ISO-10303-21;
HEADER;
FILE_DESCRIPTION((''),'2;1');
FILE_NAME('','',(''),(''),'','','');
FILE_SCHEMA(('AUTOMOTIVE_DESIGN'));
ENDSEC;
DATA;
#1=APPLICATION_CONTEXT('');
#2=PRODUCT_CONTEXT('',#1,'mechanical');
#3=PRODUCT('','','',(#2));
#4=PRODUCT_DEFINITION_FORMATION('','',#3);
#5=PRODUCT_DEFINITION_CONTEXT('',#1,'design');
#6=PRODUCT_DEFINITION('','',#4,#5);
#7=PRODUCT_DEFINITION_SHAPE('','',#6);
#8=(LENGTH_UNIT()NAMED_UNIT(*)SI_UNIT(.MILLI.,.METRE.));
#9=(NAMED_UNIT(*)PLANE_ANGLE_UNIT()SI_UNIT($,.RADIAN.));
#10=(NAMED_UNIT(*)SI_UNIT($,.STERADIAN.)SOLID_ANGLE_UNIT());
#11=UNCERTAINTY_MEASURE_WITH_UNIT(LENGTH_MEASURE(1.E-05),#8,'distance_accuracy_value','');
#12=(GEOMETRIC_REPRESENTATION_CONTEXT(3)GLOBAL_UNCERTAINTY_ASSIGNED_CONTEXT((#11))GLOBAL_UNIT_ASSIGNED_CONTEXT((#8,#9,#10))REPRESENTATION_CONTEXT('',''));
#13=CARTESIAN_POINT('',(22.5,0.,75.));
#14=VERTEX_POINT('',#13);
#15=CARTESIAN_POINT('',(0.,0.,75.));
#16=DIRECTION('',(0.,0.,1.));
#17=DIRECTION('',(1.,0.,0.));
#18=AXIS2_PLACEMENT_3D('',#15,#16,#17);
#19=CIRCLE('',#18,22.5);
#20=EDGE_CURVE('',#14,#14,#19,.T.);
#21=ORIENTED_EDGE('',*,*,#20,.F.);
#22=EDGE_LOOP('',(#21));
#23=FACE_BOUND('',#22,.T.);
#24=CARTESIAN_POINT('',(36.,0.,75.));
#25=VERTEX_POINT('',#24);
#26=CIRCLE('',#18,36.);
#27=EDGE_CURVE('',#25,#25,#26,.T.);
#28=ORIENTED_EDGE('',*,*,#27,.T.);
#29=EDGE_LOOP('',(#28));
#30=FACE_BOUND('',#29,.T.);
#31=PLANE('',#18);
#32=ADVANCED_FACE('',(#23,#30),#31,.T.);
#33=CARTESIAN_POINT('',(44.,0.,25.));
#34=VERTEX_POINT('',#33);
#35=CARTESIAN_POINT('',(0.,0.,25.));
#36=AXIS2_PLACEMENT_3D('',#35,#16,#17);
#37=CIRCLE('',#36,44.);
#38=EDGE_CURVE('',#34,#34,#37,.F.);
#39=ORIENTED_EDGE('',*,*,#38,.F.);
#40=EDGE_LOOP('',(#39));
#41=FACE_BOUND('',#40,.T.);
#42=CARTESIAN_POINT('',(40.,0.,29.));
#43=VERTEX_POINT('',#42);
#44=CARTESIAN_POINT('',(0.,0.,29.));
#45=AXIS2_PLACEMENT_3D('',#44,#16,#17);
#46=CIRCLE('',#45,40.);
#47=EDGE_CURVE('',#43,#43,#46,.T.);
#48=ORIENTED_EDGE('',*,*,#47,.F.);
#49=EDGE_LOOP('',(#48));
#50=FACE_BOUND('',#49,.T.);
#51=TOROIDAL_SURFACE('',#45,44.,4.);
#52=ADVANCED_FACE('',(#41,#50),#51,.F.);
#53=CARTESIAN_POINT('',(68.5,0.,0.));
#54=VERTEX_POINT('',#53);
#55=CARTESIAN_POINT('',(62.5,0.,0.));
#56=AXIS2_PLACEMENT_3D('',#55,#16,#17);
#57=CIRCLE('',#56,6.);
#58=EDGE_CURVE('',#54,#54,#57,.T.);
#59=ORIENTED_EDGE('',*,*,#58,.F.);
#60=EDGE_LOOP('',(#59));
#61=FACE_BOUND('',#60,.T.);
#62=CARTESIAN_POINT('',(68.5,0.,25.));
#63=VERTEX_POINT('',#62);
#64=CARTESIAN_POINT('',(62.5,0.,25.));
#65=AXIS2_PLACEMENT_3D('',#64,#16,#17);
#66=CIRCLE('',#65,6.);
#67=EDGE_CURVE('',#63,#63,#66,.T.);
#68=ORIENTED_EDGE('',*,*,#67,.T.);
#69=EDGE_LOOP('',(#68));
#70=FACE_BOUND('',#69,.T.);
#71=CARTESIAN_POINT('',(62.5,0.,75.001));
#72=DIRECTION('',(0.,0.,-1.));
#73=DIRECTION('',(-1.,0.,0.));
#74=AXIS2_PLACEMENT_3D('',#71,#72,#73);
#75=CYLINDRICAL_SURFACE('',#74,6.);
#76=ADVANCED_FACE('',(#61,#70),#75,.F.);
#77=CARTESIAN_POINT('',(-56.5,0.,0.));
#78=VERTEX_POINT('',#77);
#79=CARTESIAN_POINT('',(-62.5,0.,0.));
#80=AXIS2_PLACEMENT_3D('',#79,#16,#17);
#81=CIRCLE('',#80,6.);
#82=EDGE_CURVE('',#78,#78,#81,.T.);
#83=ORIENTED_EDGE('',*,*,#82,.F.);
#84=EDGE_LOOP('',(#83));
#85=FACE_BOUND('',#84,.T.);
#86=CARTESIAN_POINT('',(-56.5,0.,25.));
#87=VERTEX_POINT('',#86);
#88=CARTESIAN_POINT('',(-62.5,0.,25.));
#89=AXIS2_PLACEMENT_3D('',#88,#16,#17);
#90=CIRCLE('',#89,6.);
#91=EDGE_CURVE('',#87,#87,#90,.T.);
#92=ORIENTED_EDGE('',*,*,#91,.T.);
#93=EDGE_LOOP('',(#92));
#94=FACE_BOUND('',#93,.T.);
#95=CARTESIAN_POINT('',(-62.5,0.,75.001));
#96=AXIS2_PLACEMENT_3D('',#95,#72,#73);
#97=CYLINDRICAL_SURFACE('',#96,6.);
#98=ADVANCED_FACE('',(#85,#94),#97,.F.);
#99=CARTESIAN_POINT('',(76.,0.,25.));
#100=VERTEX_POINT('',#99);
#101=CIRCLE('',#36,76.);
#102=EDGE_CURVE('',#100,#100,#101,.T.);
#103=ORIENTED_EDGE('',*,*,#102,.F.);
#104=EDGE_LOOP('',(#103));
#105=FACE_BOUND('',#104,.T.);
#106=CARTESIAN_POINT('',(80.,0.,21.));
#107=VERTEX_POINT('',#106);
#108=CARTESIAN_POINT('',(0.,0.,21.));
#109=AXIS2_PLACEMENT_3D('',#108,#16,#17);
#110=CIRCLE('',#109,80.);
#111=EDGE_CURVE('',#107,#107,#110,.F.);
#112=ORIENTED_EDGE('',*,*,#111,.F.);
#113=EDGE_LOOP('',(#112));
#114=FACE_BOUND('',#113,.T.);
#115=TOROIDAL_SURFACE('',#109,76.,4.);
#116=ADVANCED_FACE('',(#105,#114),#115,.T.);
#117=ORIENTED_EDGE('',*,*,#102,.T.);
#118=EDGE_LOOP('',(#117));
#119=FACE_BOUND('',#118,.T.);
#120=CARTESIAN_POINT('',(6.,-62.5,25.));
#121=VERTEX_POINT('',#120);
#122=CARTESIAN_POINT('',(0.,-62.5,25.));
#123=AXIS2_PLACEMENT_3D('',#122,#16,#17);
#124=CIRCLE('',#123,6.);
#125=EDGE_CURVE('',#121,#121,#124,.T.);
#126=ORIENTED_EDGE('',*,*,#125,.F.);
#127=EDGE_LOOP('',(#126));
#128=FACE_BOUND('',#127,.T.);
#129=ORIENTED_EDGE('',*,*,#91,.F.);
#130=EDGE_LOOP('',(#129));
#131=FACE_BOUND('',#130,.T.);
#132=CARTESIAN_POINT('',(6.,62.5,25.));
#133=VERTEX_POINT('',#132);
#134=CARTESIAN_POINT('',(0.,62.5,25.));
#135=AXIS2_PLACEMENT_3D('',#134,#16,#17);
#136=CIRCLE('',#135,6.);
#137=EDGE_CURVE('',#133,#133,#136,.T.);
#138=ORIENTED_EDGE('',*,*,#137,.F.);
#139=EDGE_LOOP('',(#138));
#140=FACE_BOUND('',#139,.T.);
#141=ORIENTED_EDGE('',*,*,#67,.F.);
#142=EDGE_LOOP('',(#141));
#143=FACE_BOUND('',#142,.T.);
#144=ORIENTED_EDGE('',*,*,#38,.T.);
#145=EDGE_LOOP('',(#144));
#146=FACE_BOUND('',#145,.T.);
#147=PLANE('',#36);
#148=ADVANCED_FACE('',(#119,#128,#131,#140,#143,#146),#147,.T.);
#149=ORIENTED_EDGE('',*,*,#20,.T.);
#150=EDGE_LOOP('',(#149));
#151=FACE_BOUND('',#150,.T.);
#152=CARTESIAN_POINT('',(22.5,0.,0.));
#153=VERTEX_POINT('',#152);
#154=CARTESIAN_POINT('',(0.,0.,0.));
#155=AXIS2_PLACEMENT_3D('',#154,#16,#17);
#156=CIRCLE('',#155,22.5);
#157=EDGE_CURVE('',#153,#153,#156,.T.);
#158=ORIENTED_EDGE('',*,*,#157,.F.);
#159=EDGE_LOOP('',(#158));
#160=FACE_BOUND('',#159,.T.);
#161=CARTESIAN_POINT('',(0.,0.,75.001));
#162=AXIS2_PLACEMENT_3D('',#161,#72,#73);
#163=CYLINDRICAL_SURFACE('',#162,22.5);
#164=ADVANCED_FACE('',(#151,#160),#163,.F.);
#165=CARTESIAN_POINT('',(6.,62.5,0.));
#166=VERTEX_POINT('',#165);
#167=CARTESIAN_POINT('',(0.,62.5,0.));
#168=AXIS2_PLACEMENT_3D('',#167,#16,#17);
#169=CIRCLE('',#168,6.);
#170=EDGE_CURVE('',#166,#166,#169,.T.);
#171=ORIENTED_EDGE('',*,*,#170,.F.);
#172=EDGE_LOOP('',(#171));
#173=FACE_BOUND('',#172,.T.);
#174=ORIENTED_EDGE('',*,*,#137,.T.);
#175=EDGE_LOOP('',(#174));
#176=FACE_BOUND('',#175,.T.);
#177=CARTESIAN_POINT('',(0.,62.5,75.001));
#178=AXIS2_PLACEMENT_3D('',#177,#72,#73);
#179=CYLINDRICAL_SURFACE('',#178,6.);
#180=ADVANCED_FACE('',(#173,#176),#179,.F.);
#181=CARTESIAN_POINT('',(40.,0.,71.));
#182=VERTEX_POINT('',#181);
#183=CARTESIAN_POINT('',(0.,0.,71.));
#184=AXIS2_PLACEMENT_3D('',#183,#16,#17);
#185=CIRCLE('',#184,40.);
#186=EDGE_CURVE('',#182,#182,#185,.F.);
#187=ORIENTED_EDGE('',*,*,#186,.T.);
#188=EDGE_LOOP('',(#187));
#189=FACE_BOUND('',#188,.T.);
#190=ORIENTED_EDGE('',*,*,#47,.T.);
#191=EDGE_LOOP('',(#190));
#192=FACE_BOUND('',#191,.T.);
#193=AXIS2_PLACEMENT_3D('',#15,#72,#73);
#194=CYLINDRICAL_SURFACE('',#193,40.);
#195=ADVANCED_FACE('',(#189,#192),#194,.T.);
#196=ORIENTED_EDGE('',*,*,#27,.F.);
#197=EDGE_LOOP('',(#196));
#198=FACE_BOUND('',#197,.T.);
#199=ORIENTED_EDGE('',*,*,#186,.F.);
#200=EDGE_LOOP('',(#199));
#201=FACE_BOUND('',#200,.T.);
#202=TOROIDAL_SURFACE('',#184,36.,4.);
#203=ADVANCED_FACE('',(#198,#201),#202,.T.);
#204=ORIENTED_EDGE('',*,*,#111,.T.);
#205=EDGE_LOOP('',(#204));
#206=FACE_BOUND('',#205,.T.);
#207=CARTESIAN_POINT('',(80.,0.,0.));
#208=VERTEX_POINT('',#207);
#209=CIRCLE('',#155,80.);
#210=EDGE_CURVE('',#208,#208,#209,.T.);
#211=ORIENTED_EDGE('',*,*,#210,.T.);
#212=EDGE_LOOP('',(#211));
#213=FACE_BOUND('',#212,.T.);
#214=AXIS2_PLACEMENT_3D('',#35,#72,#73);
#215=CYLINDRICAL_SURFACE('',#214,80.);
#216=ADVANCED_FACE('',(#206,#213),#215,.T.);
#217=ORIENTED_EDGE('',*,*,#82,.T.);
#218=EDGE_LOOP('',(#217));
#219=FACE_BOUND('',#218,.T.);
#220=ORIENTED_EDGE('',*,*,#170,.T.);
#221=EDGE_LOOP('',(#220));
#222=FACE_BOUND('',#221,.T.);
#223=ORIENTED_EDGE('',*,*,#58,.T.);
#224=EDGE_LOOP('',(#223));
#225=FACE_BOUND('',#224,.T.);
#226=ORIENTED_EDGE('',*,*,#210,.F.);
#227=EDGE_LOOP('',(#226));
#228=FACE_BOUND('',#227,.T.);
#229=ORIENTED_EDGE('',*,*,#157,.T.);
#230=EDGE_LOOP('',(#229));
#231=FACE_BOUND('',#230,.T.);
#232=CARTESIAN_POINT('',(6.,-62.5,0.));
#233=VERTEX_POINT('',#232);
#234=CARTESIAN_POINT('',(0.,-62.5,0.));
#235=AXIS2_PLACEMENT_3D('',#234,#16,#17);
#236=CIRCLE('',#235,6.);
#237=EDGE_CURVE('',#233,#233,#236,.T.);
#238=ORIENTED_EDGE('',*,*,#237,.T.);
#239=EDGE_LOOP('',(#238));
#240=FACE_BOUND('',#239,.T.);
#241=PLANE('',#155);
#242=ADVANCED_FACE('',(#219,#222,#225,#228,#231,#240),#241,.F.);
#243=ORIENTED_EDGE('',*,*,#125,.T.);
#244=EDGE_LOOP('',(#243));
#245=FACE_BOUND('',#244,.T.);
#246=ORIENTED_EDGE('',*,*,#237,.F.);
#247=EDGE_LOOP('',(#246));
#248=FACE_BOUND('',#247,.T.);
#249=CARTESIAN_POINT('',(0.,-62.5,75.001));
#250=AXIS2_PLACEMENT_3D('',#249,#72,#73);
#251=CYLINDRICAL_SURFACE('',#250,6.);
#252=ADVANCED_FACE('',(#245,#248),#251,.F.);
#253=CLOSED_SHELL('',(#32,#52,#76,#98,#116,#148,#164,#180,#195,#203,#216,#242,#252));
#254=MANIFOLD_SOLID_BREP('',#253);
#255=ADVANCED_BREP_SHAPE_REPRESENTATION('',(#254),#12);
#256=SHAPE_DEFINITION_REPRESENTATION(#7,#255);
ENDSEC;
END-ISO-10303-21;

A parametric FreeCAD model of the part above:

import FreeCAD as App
import Part
import Sketcher
from FreeCAD import Vector


def edges_at(feature, points):
    """Names of the edges that pass closest to the given points."""
    edges = feature.Shape.Edges
    near = lambda p: min(range(len(edges)), key=lambda i: edges[i].distToShape(Part.Vertex(*p))[0])
    return sorted({f"Edge{near(p) + 1}" for p in points})

doc = App.newDocument("Part")
body = doc.addObject("PartDesign::Body", "Body")

# Sketch on XY plane
sketch1 = body.newObject("Sketcher::SketchObject", "Sketch")
sketch1.AttachmentSupport = (doc.getObject("XY_Plane"), [""])
sketch1.MapMode = "FlatFace"
sketch1.addGeometry(Part.Circle(Vector(0, 0, 0), Vector(0, 0, 1), 80), False)
sketch1.addConstraint(Sketcher.Constraint("Coincident", 0, 3, -1, 1))
sketch1.addConstraint(Sketcher.Constraint("Diameter", 0, 160.0))
pad1 = body.newObject("PartDesign::Pad", "Pad")
pad1.Profile = sketch1
pad1.Length = 25

# Sketch on XY plane
sketch2 = body.newObject("Sketcher::SketchObject", "Sketch001")
sketch2.AttachmentSupport = (doc.getObject("XY_Plane"), [""])
sketch2.MapMode = "FlatFace"
sketch2.addGeometry(Part.Circle(Vector(0, 0, 0), Vector(0, 0, 1), 40), False)
sketch2.addConstraint(Sketcher.Constraint("Coincident", 0, 3, -1, 1))
sketch2.addConstraint(Sketcher.Constraint("Diameter", 0, 80.0))
pad2 = body.newObject("PartDesign::Pad", "Pad001")
pad2.Profile = sketch2
pad2.Length = 75

# Sketch on XY plane
sketch3 = body.newObject("Sketcher::SketchObject", "Sketch002")
sketch3.AttachmentSupport = (doc.getObject("XY_Plane"), [""])
sketch3.MapMode = "FlatFace"
sketch3.addGeometry(Part.Circle(Vector(0, 62, 0), Vector(0, 0, 1), 6), False)
sketch3.addConstraint(Sketcher.Constraint("PointOnObject", 0, 3, -2))
sketch3.addConstraint(Sketcher.Constraint("Diameter", 0, 12.0))
sketch3.addConstraint(Sketcher.Constraint("DistanceY", -1, 1, 0, 3, 62.5))
pocket1 = body.newObject("PartDesign::Pocket", "Pocket")
pocket1.Profile = sketch3
pocket1.Type = "UpToFirst"
pocket1.Reversed = True

# Sketch on XY plane
sketch4 = body.newObject("Sketcher::SketchObject", "Sketch003")
sketch4.AttachmentSupport = (doc.getObject("XY_Plane"), [""])
sketch4.MapMode = "FlatFace"
sketch4.addGeometry(Part.Circle(Vector(-62, 0, 0), Vector(0, 0, 1), 6), False)
sketch4.addConstraint(Sketcher.Constraint("PointOnObject", 0, 3, -1))
sketch4.addConstraint(Sketcher.Constraint("Diameter", 0, 12.0))
sketch4.addConstraint(Sketcher.Constraint("DistanceX", 0, 3, -1, 1, 62.5))
pocket2 = body.newObject("PartDesign::Pocket", "Pocket001")
pocket2.Profile = sketch4
pocket2.Type = "UpToFirst"
pocket2.Reversed = True

# Sketch on XY plane
sketch5 = body.newObject("Sketcher::SketchObject", "Sketch004")
sketch5.AttachmentSupport = (doc.getObject("XY_Plane"), [""])
sketch5.MapMode = "FlatFace"
sketch5.addGeometry(Part.Circle(Vector(62, 0, 0), Vector(0, 0, 1), 6), False)
sketch5.addConstraint(Sketcher.Constraint("PointOnObject", 0, 3, -1))
sketch5.addConstraint(Sketcher.Constraint("Diameter", 0, 12.0))
sketch5.addConstraint(Sketcher.Constraint("DistanceX", -1, 1, 0, 3, 62.5))
pocket3 = body.newObject("PartDesign::Pocket", "Pocket002")
pocket3.Profile = sketch5
pocket3.Type = "UpToFirst"
pocket3.Reversed = True

# Sketch on XY plane
sketch6 = body.newObject("Sketcher::SketchObject", "Sketch005")
sketch6.AttachmentSupport = (doc.getObject("XY_Plane"), [""])
sketch6.MapMode = "FlatFace"
sketch6.addGeometry(Part.Circle(Vector(0, -62, 0), Vector(0, 0, 1), 6), False)
sketch6.addConstraint(Sketcher.Constraint("PointOnObject", 0, 3, -2))
sketch6.addConstraint(Sketcher.Constraint("Diameter", 0, 12.0))
sketch6.addConstraint(Sketcher.Constraint("DistanceY", 0, 3, -1, 1, 62.5))
pocket4 = body.newObject("PartDesign::Pocket", "Pocket003")
pocket4.Profile = sketch6
pocket4.Type = "UpToFirst"
pocket4.Reversed = True

# Sketch on XY plane
sketch7 = body.newObject("Sketcher::SketchObject", "Sketch006")
sketch7.AttachmentSupport = (doc.getObject("XY_Plane"), [""])
sketch7.MapMode = "FlatFace"
sketch7.addGeometry(Part.Circle(Vector(0, 0, 0), Vector(0, 0, 1), 22), False)
sketch7.addConstraint(Sketcher.Constraint("Coincident", 0, 3, -1, 1))
sketch7.addConstraint(Sketcher.Constraint("Diameter", 0, 45.0))
pocket5 = body.newObject("PartDesign::Pocket", "Pocket004")
pocket5.Profile = sketch7
pocket5.Type = "UpToFirst"
pocket5.Reversed = True
doc.recompute()

fillet = body.newObject("PartDesign::Fillet", "Fillet")
fillet.Base = (pocket5, edges_at(pocket5, [(-40, 0, 25)]))
fillet.Radius = 4
doc.recompute()

fillet2 = body.newObject("PartDesign::Fillet", "Fillet001")
fillet2.Base = (fillet, edges_at(fillet, [(-80, 0, 25)]))
fillet2.Radius = 4
doc.recompute()

fillet3 = body.newObject("PartDesign::Fillet", "Fillet002")
fillet3.Base = (fillet2, edges_at(fillet2, [(-40, 0, 75)]))
fillet3.Radius = 4

doc.recompute()
